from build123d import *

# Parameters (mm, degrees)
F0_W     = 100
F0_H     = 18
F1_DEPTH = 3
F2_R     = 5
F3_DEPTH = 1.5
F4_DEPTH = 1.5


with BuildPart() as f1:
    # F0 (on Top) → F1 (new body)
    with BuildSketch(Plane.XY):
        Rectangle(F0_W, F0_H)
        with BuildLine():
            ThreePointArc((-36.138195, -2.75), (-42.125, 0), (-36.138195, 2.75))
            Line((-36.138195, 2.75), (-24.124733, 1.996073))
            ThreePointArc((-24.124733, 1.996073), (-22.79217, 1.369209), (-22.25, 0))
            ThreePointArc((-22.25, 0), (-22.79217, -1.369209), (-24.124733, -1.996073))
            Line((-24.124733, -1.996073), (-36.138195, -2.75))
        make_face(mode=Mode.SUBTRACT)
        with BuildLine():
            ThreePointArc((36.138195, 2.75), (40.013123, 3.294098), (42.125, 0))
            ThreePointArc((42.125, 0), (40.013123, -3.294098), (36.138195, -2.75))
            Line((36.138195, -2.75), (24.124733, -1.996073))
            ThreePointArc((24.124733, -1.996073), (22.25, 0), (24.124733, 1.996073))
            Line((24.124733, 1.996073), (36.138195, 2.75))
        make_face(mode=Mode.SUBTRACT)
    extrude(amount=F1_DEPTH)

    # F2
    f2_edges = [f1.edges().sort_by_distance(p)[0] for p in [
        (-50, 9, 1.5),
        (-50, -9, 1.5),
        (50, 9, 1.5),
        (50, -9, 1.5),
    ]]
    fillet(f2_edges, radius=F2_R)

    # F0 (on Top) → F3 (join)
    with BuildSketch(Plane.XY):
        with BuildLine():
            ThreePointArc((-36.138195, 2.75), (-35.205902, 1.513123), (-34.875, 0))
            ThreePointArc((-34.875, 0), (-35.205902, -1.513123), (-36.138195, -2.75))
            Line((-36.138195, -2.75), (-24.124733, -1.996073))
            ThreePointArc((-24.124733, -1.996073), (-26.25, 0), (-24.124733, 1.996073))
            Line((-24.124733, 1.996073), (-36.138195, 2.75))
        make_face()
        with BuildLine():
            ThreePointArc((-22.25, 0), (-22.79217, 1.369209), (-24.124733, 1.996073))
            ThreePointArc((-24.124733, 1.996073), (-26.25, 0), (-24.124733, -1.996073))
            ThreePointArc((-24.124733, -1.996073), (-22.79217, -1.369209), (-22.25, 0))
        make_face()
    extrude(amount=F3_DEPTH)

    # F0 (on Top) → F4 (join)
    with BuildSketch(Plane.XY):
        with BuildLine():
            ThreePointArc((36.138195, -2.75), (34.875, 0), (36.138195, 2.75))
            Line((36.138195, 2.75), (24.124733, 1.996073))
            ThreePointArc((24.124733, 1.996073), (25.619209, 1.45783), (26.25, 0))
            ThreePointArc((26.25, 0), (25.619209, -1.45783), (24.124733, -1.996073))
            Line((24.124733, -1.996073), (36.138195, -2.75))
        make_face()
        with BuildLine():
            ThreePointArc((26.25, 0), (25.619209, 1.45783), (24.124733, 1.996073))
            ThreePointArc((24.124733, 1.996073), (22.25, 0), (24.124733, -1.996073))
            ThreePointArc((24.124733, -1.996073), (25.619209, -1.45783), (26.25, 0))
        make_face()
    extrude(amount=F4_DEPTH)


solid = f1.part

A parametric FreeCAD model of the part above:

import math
import FreeCAD as App
import Part
import Sketcher


def edges_at(feature, points):
    """Names of the edges that pass closest to the given points."""
    edges = feature.Shape.Edges
    near = lambda p: min(range(len(edges)), key=lambda i: edges[i].distToShape(Part.Vertex(*p))[0])
    return sorted({f"Edge{near(p) + 1}" for p in points})


def add_polygon(sketch, points):
    """Adds a closed chain of lines whose ends are joined by coincident constraints."""
    first, n = sketch.GeometryCount, len(points)
    for a, b in zip(points, points[1:] + points[:1]):
        sketch.addGeometry(Part.LineSegment(App.Vector(*a, 0), App.Vector(*b, 0)), False)
    for i in range(n):
        sketch.addConstraint(Sketcher.Constraint("Coincident", first + i, 2, first + (i + 1) % n, 1))

doc = App.newDocument("Part")
body = doc.addObject("PartDesign::Body", "Body")

# Sketch on XY plane
sketch1 = body.newObject("Sketcher::SketchObject", "Sketch")
sketch1.AttachmentSupport = (doc.getObject("XY_Plane"), [""])
sketch1.MapMode = "FlatFace"
add_polygon(sketch1, [(-50, 9), (-50, -9), (50, -9), (50, 9)])  # lines 0-3
sketch1.addGeometry(Part.LineSegment(App.Vector(-24.1, -2, 0), App.Vector(-36.1, -2.8, 0)), False)  # 4
sketch1.addGeometry(Part.ArcOfCircle(Part.Circle(App.Vector(-38.5, 0, 0), App.Vector(0, 0, 1), 3.6), math.radians(49), math.radians(311)), False)  # 5
sketch1.addGeometry(Part.LineSegment(App.Vector(-36.1, 2.8, 0), App.Vector(-24.1, 2, 0)), False)  # 6
sketch1.addGeometry(Part.ArcOfCircle(Part.Circle(App.Vector(-24.2, 0, 0), App.Vector(0, 0, 1), 2), math.radians(0), math.radians(86)), False)  # 7
sketch1.addGeometry(Part.ArcOfCircle(Part.Circle(App.Vector(-24.2, 0, 0), App.Vector(0, 0, 1), 2), math.radians(-86), math.radians(0)), False)  # 8
sketch1.addGeometry(Part.LineSegment(App.Vector(24.1, 2, 0), App.Vector(36.1, 2.8, 0)), False)  # 9
sketch1.addGeometry(Part.ArcOfCircle(Part.Circle(App.Vector(38.5, 0, 0), App.Vector(0, 0, 1), 3.6), math.radians(0), math.radians(131)), False)  # 10
sketch1.addGeometry(Part.ArcOfCircle(Part.Circle(App.Vector(38.5, 0, 0), App.Vector(0, 0, 1), 3.6), math.radians(-131), math.radians(0)), False)  # 11
sketch1.addGeometry(Part.LineSegment(App.Vector(36.1, -2.8, 0), App.Vector(24.1, -2, 0)), False)  # 12
sketch1.addGeometry(Part.ArcOfCircle(Part.Circle(App.Vector(24.2, 0, 0), App.Vector(0, 0, 1), 2), math.radians(94), math.radians(266)), False)  # 13
sketch1.addConstraint([
    Sketcher.Constraint("Coincident", 4, 2, 5, 2),
    Sketcher.Constraint("Coincident", 5, 1, 6, 1),
    Sketcher.Constraint("Tangent", 6, 2, 7, 2),
    Sketcher.Constraint("Tangent", 7, 1, 8, 2),
    Sketcher.Constraint("Tangent", 8, 1, 4, 1),
    Sketcher.Constraint("Coincident", 9, 2, 10, 2),
    Sketcher.Constraint("Tangent", 10, 1, 11, 2),
    Sketcher.Constraint("Coincident", 11, 1, 12, 1),
    Sketcher.Constraint("Tangent", 12, 2, 13, 2),
    Sketcher.Constraint("Tangent", 13, 1, 9, 1),
    Sketcher.Constraint("Vertical", 0),
    Sketcher.Constraint("Horizontal", 1),
    Sketcher.Constraint("Vertical", 2),
    Sketcher.Constraint("Horizontal", 3),
    Sketcher.Constraint("Equal", 7, 8),
    Sketcher.Constraint("Equal", 5, 10),
    Sketcher.Constraint("Equal", 10, 11),
    Sketcher.Constraint("Equal", 8, 13),
    Sketcher.Constraint("Symmetric", 5, 3, 10, 3, -1, 1),
    Sketcher.Constraint("Symmetric", 7, 3, 13, 3, -1, 1),
    Sketcher.Constraint("Symmetric", 0, 2, 2, 2, -1, 1),
    Sketcher.Constraint("Symmetric", 5, 1, 9, 2, -2),
    Sketcher.Constraint("Symmetric", 8, 1, 12, 2, -2),
    Sketcher.Constraint("PointOnObject", 7, 1, -1),
    Sketcher.Constraint("PointOnObject", 10, 1, -1),
    Sketcher.Constraint("Parallel", 4, 9),
    Sketcher.Constraint("Radius", 7, 1.999999),
    Sketcher.Constraint("DistanceX", 1, 1, 1, 2, 100.0),
    Sketcher.Constraint("DistanceY", 0, 2, 0, 1, 18.0),
    Sketcher.Constraint("Radius", 5, 3.625),
    Sketcher.Constraint("DistanceX", 5, 3, 10, 3, 77.0),
    Sketcher.Constraint("DistanceX", 7, 3, 13, 3, 48.499998),
    Sketcher.Constraint("DistanceY", 4, 2, 5, 1, 5.5),
])
pad1 = body.newObject("PartDesign::Pad", "Pad")
pad1.Profile = sketch1
pad1.Length = 3
doc.recompute()

fillet = body.newObject("PartDesign::Fillet", "Fillet")
fillet.Base = (pad1, edges_at(pad1, [
    (-50, 9, 1.5),
    (-50, -9, 1.5),
    (50, 9, 1.5),
    (50, -9, 1.5),
]))
fillet.Radius = 5

# Sketch on XY plane
sketch2 = body.newObject("Sketcher::SketchObject", "Sketch001")
sketch2.AttachmentSupport = (doc.getObject("XY_Plane"), [""])
sketch2.MapMode = "FlatFace"
sketch2.addGeometry([
    Part.ArcOfCircle(Part.Circle(App.Vector(-38.5, 0, 0), App.Vector(0, 0, 1), 3.6), math.radians(0), math.radians(49)),  # 0
    Part.ArcOfCircle(Part.Circle(App.Vector(-38.5, 0, 0), App.Vector(0, 0, 1), 3.6), math.radians(-49), math.radians(0)),  # 1
    Part.LineSegment(App.Vector(-36.1, -2.8, 0), App.Vector(-24.1, -2, 0)),  # 2
    Part.ArcOfCircle(Part.Circle(App.Vector(-24.2, 0, 0), App.Vector(0, 0, 1), 2), math.radians(-86), math.radians(0)),  # 3
    Part.ArcOfCircle(Part.Circle(App.Vector(-24.2, 0, 0), App.Vector(0, 0, 1), 2), math.radians(0), math.radians(86)),  # 4
    Part.LineSegment(App.Vector(-24.1, 2, 0), App.Vector(-36.1, 2.8, 0)),  # 5
], False)
sketch2.addConstraint([
    Sketcher.Constraint("Tangent", 0, 1, 1, 2),
    Sketcher.Constraint("Coincident", 1, 1, 2, 1),
    Sketcher.Constraint("Tangent", 2, 2, 3, 1),
    Sketcher.Constraint("Tangent", 3, 2, 4, 1),
    Sketcher.Constraint("Tangent", 4, 2, 5, 1),
    Sketcher.Constraint("Coincident", 5, 2, 0, 2),
    Sketcher.Constraint("Equal", 0, 1),
    Sketcher.Constraint("Equal", 3, 4),
    Sketcher.Constraint("Symmetric", 2, 2, 4, 2, -1),
    Sketcher.Constraint("PointOnObject", 0, 3, -1),
    Sketcher.Constraint("PointOnObject", 0, 1, -1),
    Sketcher.Constraint("PointOnObject", 3, 2, -1),
    Sketcher.Constraint("Radius", 3, 1.999999),
    Sketcher.Constraint("Radius", 0, 3.625001),
    Sketcher.Constraint("DistanceX", 0, 3, -1, 1, 38.500001),
    Sketcher.Constraint("DistanceY", 1, 1, 5, 2, 5.5),
    Sketcher.Constraint("DistanceX", 3, 3, -1, 1, 24.249999),
])
pad2 = body.newObject("PartDesign::Pad", "Pad001")
pad2.Profile = sketch2
pad2.Length = 1.5

# Sketch on XY plane
sketch3 = body.newObject("Sketcher::SketchObject", "Sketch002")
sketch3.AttachmentSupport = (doc.getObject("XY_Plane"), [""])
sketch3.MapMode = "FlatFace"
sketch3.addGeometry([
    Part.ArcOfCircle(Part.Circle(App.Vector(38.5, 0, 0), App.Vector(0, 0, 1), 3.6), math.radians(131), math.radians(229)),
    Part.LineSegment(App.Vector(36.1, 2.8, 0), App.Vector(24.1, 2, 0)),
    Part.ArcOfCircle(Part.Circle(App.Vector(24.2, 0, 0), App.Vector(0, 0, 1), 2), math.radians(94), math.radians(266)),
    Part.LineSegment(App.Vector(24.1, -2, 0), App.Vector(36.1, -2.8, 0)),
], False)
sketch3.addConstraint([
    Sketcher.Constraint("Coincident", 0, 1, 1, 1),
    Sketcher.Constraint("Tangent", 1, 2, 2, 1),
    Sketcher.Constraint("Tangent", 2, 2, 3, 1),
    Sketcher.Constraint("Coincident", 3, 2, 0, 2),
    Sketcher.Constraint("Symmetric", 1, 2, 2, 2, -1),
    Sketcher.Constraint("PointOnObject", 0, 3, -1),
    Sketcher.Constraint("Radius", 2, 2.0),
    Sketcher.Constraint("Radius", 0, 3.624999),
    Sketcher.Constraint("DistanceX", -1, 1, 0, 3, 38.499999),
    Sketcher.Constraint("DistanceY", 3, 2, 0, 1, 5.5),
    Sketcher.Constraint("DistanceX", -1, 1, 2, 3, 24.25),
])
pad3 = body.newObject("PartDesign::Pad", "Pad002")
pad3.Profile = sketch3
pad3.Length = 1.5

doc.recompute()
